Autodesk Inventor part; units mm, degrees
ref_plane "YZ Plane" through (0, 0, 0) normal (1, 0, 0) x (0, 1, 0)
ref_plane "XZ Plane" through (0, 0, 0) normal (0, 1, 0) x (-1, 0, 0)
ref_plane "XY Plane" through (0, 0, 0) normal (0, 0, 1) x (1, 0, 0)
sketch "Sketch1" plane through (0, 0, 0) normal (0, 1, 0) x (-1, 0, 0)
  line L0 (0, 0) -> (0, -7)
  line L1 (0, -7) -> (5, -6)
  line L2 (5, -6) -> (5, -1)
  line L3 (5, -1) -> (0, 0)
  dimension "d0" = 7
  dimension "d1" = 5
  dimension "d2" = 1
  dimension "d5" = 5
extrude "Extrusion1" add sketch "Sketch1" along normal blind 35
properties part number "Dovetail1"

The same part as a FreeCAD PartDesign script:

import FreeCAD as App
import Part
import Sketcher
Q = App.Units.Quantity


def add_polygon(sketch, points):
    """Adds a closed chain of lines whose ends are joined by coincident constraints."""
    first, n = sketch.GeometryCount, len(points)
    for a, b in zip(points, points[1:] + points[:1]):
        sketch.addGeometry(Part.LineSegment(App.Vector(*a, 0), App.Vector(*b, 0)), False)
    for i in range(n):
        sketch.addConstraint(Sketcher.Constraint("Coincident", first + i, 2, first + (i + 1) % n, 1))

doc = App.newDocument("Part")
body = doc.addObject("PartDesign::Body", "Body")

# Sketch on XZ plane
sketch1 = doc.addObject("Sketcher::SketchObject", "Sketch")
body.addObject(sketch1)
sketch1.AttachmentSupport = (doc.XZ_Plane, [""])
sketch1.MapMode = "FlatFace"
add_polygon(sketch1, [(-5, -1), (0, 0), (0, -7), (-5, -6)])  # lines 0-3
sketch1.addConstraint(Sketcher.Constraint("Vertical", 1))
sketch1.addConstraint(Sketcher.Constraint("Vertical", 3))
sketch1.addConstraint(Sketcher.Constraint("Coincident", 0, 2, -1, 1))
sketch1.addConstraint(Sketcher.Constraint("Equal", 0, 2))
sketch1.addConstraint(Sketcher.Constraint("DistanceY", 1, 2, 1, 1, Q("7 mm")))
sketch1.addConstraint(Sketcher.Constraint("DistanceY", 3, 1, 3, 2, Q("5 mm")))
sketch1.addConstraint(Sketcher.Constraint("DistanceX", 2, 2, -1, 1, Q("5 mm")))
pad1 = doc.addObject("PartDesign::Pad", "Pad")
body.addObject(pad1)
pad1.Profile = sketch1
pad1.Length = 35
pad1.Reversed = True

doc.recompute()
